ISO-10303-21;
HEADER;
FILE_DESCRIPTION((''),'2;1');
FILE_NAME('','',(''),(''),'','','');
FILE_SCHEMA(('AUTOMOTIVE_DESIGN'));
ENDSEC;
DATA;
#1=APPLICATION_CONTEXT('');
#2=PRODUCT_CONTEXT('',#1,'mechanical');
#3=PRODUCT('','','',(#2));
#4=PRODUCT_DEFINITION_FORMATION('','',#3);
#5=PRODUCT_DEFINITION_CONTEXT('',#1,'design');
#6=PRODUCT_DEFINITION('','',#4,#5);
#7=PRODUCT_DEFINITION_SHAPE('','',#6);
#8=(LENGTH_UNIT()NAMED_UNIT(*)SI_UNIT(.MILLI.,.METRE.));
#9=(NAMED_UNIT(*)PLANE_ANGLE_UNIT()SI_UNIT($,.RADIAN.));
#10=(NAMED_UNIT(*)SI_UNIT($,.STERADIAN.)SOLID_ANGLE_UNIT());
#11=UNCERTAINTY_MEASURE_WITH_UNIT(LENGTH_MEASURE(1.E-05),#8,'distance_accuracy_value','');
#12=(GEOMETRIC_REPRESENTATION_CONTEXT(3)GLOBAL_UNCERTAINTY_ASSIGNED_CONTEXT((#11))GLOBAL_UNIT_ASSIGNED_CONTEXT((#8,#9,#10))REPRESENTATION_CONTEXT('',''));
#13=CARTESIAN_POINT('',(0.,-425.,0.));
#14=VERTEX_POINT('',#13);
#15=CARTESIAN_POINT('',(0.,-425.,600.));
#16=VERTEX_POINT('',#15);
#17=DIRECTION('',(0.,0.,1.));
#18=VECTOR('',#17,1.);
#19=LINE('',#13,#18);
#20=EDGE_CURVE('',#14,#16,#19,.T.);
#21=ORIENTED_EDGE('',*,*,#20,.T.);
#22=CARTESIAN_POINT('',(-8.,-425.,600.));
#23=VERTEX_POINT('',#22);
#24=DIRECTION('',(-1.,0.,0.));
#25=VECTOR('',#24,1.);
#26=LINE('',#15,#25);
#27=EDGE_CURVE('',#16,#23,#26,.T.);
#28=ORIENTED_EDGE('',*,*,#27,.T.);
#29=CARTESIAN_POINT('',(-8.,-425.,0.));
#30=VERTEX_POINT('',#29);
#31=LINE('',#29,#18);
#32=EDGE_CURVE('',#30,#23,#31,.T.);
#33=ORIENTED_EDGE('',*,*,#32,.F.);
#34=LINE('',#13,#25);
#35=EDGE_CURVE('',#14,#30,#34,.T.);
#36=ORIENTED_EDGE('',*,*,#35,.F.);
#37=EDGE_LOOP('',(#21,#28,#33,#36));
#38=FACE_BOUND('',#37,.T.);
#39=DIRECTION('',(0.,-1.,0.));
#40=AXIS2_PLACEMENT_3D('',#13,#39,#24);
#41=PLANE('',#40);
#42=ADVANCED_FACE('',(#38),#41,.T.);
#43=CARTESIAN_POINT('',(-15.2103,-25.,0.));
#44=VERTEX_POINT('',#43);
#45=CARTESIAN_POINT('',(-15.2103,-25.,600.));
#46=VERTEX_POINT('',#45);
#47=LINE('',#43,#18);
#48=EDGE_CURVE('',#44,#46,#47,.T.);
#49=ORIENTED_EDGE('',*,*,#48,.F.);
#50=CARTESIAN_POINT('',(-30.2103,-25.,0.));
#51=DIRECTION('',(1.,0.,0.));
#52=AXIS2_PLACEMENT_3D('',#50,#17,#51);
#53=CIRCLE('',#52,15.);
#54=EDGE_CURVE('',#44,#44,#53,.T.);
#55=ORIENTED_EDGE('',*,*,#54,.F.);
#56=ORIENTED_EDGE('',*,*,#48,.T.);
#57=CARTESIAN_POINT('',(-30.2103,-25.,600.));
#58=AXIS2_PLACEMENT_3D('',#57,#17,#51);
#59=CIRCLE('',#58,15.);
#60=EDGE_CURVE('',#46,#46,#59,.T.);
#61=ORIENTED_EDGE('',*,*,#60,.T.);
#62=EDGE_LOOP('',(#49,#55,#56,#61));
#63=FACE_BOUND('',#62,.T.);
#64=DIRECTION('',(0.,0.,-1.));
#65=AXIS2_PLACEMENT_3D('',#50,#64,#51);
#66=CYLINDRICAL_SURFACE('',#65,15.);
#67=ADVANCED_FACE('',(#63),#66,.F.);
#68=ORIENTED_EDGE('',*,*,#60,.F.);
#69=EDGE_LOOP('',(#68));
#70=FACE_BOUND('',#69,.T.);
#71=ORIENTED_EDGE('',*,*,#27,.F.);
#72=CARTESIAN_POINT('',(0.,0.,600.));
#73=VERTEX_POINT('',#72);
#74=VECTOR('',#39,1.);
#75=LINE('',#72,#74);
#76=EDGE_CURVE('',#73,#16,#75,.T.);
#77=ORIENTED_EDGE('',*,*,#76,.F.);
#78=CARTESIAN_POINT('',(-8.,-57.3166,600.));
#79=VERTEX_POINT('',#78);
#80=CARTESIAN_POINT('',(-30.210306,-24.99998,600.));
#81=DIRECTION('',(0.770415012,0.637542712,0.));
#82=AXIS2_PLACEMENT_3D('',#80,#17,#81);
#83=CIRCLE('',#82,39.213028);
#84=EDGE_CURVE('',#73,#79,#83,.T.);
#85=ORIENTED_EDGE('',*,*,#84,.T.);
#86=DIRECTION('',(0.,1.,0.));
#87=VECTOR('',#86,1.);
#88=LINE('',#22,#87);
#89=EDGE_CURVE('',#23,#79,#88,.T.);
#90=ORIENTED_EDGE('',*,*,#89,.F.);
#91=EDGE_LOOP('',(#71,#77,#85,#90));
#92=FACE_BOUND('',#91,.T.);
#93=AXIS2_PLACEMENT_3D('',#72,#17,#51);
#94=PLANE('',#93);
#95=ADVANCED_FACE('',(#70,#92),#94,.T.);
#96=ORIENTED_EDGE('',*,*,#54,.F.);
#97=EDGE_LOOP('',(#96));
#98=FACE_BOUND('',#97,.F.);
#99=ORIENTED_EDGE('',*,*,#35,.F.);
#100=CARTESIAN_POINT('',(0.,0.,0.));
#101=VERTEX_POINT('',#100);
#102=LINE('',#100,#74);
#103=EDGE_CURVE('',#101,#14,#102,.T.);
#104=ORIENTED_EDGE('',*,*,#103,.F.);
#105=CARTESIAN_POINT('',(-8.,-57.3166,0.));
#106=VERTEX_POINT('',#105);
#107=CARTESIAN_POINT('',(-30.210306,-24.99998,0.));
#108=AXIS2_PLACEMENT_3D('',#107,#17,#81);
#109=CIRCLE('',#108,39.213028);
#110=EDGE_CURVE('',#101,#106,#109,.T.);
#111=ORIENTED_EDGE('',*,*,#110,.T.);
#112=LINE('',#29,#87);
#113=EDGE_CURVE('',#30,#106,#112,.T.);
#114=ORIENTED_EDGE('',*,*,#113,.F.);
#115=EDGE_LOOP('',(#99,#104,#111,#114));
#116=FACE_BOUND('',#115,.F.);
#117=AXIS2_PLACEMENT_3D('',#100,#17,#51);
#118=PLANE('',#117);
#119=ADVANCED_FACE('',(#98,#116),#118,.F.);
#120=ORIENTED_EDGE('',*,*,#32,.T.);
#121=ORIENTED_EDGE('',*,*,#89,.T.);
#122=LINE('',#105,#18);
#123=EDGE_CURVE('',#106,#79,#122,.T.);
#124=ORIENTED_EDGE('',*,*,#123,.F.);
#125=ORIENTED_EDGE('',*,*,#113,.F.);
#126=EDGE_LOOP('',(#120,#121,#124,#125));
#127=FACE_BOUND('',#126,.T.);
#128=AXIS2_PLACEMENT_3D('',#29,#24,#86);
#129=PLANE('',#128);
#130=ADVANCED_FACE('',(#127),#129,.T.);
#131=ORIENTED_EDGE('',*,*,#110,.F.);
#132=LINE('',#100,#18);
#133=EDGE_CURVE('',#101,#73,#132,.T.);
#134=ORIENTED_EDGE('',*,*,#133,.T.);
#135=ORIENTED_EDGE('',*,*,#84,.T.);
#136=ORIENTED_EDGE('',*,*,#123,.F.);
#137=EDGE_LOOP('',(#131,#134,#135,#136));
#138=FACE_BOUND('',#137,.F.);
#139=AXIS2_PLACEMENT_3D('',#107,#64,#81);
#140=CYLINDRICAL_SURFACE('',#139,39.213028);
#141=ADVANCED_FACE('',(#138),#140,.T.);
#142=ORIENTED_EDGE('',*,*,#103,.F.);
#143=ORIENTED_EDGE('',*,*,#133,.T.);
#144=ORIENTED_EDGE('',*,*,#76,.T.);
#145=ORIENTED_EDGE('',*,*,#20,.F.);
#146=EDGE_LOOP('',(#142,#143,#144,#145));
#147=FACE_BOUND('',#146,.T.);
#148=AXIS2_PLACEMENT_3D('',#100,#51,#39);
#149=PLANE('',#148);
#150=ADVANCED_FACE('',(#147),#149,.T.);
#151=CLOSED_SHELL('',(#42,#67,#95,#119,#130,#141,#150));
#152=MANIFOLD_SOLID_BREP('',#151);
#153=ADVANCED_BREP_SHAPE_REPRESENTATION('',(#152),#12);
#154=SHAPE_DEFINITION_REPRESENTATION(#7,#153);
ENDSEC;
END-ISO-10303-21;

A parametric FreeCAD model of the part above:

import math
import FreeCAD as App
import Part
import Sketcher

doc = App.newDocument("Part")
body = doc.addObject("PartDesign::Body", "Body")

# Sketch on XY plane
sketch1 = body.newObject("Sketcher::SketchObject", "Sketch")
sketch1.AttachmentSupport = (doc.getObject("XY_Plane"), [""])
sketch1.MapMode = "FlatFace"
sketch1.addGeometry([
    Part.LineSegment(App.Vector(0, -425, 0), App.Vector(0, 0, 0)),  # 0
    Part.ArcOfCircle(Part.Circle(App.Vector(-30, -25, 0), App.Vector(0, 0, 1), 39), math.radians(40), math.radians(304)),  # 1
    Part.LineSegment(App.Vector(-8, -57, 0), App.Vector(-8, -425, 0)),  # 2
    Part.LineSegment(App.Vector(-8, -425, 0), App.Vector(0, -425, 0)),  # 3
    Part.Circle(App.Vector(-30, -25, 0), App.Vector(0, 0, 1), 15),  # 4
], False)
sketch1.addConstraint([
    Sketcher.Constraint("Coincident", 0, 2, 1, 1),
    Sketcher.Constraint("Coincident", 1, 2, 2, 1),
    Sketcher.Constraint("Coincident", 2, 2, 3, 1),
    Sketcher.Constraint("Coincident", 3, 2, 0, 1),
    Sketcher.Constraint("Vertical", 0),
    Sketcher.Constraint("Vertical", 2),
    Sketcher.Constraint("Horizontal", 3),
    Sketcher.Constraint("Coincident", 0, 2, -1, 1),
    Sketcher.Constraint("Coincident", 4, 3, 1, 3),
    Sketcher.Constraint("Diameter", 4, 30.0),
    Sketcher.Constraint("DistanceX", 3, 1, 3, 2, 8.0),
    Sketcher.Constraint("DistanceY", 0, 1, 0, 2, 425.0),
    Sketcher.Constraint("DistanceY", 1, 3, -1, 1, 25.0),
    Sketcher.Constraint("Radius", 1, 39.213),
])
pad1 = body.newObject("PartDesign::Pad", "Pad")
pad1.Profile = sketch1
pad1.Length = 600

doc.recompute()
